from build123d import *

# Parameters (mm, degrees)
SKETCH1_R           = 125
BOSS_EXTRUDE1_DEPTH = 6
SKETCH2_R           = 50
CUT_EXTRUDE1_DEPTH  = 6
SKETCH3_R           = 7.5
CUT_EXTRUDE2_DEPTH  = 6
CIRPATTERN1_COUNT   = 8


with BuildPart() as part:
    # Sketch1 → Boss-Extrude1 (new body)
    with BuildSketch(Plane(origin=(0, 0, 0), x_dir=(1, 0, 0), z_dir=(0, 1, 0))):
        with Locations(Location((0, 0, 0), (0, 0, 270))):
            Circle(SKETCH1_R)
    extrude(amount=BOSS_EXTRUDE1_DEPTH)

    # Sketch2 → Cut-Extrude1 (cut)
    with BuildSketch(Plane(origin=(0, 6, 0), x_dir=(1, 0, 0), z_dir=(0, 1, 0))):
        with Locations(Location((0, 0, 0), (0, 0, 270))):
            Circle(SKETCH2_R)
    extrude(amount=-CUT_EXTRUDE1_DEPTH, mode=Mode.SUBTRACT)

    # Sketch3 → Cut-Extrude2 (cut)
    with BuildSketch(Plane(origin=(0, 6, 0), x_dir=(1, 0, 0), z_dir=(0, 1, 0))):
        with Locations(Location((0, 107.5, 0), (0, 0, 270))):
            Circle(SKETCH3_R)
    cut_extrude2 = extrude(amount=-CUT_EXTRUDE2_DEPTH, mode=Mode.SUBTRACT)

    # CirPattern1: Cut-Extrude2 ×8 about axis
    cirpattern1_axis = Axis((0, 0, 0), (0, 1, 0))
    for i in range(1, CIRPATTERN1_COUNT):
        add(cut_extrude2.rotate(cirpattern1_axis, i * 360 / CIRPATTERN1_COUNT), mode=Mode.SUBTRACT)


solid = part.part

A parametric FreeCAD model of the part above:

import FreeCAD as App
import Part
import Sketcher
Q = App.Units.Quantity

doc = App.newDocument("Part")
body = doc.addObject("PartDesign::Body", "Body")

# Sketch on XZ plane
sketch1 = doc.addObject("Sketcher::SketchObject", "Sketch")
body.addObject(sketch1)
sketch1.AttachmentSupport = (doc.XZ_Plane, [""])
sketch1.MapMode = "FlatFace"
sketch1.addGeometry(Part.Circle(App.Vector(0, 0, 0), App.Vector(0, 0, 1), 125), False)
sketch1.addConstraint([
    Sketcher.Constraint("Coincident", 0, 3, -1, 1),
    Sketcher.Constraint("Diameter", 0, Q("250 mm")),
])
pad1 = doc.addObject("PartDesign::Pad", "Pad")
body.addObject(pad1)
pad1.Profile = sketch1
pad1.Length = 6
pad1.Reversed = True

# Sketch on XZ plane
sketch2 = doc.addObject("Sketcher::SketchObject", "Sketch001")
body.addObject(sketch2)
sketch2.AttachmentSupport = (doc.XZ_Plane, [""])
sketch2.MapMode = "FlatFace"
sketch2.AttachmentOffset = App.Placement(App.Vector(0, 0, -6), App.Rotation())
sketch2.addGeometry(Part.Circle(App.Vector(0, 0, 0), App.Vector(0, 0, 1), 50), False)
sketch2.addConstraint([
    Sketcher.Constraint("Coincident", 0, 3, -1, 1),
    Sketcher.Constraint("Diameter", 0, Q("100 mm")),
])
pocket1 = doc.addObject("PartDesign::Pocket", "Pocket")
body.addObject(pocket1)
pocket1.Profile = sketch2
pocket1.Length = 6
pocket1.Reversed = True

# Sketch on XZ plane
sketch3 = doc.addObject("Sketcher::SketchObject", "Sketch002")
body.addObject(sketch3)
sketch3.AttachmentSupport = (doc.XZ_Plane, [""])
sketch3.MapMode = "FlatFace"
sketch3.AttachmentOffset = App.Placement(App.Vector(0, 0, -6), App.Rotation())
sketch3.addGeometry(Part.Circle(App.Vector(0, -108, 0), App.Vector(0, 0, 1), 8), False)
sketch3.addConstraint([
    Sketcher.Constraint("PointOnObject", 0, 3, -2),
    Sketcher.Constraint("Diameter", 0, Q("15 mm")),
    Sketcher.Constraint("DistanceY", 0, 3, -1, 1, Q("107.5 mm")),
])
pocket2 = doc.addObject("PartDesign::Pocket", "Pocket001")
body.addObject(pocket2)
pocket2.Profile = sketch3
pocket2.Length = 6
pocket2.Reversed = True
doc.recompute()

polarpattern = doc.addObject("PartDesign::PolarPattern", "PolarPattern")
body.addObject(polarpattern)
polarpattern.Originals = [pocket2]
polarpattern.Axis = (doc.Y_Axis, [""])
polarpattern.Angle = 360
polarpattern.Occurrences = 8
body.Tip = polarpattern

doc.recompute()
